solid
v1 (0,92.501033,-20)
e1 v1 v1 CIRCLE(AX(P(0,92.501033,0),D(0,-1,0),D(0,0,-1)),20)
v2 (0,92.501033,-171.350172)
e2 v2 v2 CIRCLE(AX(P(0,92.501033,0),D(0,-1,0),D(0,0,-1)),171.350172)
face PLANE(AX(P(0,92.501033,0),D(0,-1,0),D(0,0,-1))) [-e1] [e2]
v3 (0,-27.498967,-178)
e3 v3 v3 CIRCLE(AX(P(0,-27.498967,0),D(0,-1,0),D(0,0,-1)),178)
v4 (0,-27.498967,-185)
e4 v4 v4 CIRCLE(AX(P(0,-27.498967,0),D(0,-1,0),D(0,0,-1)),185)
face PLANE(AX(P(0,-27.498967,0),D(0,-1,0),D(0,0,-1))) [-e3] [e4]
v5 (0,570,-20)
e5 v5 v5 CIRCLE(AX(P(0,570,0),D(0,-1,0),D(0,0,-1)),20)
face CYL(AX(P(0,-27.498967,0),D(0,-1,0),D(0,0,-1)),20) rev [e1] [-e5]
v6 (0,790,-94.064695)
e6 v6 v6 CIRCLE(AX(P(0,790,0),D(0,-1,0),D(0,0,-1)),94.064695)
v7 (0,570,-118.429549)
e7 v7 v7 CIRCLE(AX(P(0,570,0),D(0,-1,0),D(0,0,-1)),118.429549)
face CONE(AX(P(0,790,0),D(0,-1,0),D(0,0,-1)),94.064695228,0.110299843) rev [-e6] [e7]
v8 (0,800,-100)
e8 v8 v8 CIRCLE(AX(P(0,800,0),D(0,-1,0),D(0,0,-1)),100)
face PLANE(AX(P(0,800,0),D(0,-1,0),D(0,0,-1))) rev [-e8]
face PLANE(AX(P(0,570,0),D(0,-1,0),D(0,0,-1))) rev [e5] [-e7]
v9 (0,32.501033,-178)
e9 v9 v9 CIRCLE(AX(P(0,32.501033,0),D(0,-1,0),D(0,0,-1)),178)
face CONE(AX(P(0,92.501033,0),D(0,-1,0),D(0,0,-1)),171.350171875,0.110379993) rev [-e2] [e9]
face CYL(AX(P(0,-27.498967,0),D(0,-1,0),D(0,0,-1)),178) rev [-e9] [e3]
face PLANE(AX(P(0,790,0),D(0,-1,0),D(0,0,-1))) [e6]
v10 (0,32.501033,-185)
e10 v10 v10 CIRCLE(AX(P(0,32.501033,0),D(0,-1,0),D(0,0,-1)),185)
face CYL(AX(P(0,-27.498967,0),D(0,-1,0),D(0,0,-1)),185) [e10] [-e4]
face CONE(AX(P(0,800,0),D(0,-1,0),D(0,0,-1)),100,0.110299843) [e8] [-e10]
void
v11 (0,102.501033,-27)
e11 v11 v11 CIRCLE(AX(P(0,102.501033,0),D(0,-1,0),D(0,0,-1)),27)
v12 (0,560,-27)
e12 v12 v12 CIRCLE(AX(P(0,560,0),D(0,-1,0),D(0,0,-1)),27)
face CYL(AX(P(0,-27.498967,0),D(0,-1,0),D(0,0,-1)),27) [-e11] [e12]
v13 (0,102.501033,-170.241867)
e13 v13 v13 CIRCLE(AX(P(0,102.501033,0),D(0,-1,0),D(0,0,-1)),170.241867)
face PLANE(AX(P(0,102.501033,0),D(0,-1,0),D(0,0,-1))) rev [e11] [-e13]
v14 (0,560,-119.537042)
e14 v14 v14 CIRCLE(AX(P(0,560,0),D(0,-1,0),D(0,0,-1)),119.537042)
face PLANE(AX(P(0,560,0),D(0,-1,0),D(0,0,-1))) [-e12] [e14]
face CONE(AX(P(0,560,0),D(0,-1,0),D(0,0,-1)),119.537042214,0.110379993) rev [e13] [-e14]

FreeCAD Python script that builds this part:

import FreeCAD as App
import Part
import Sketcher
from FreeCAD import Vector
Q = App.Units.Quantity

doc = App.newDocument("Part")
params = doc.addObject("Spreadsheet::Sheet", "Params")
for row, (alias, value) in enumerate([
    ("sketch1_width", "100 mm"),
    ("sketch1_width2", "7 mm"),
    ("sketch1_height", "10 mm"),
    ("sketch1_height2", "60 mm"),
    ("revolution_angle", "360 deg"),
], start=1):
    params.set(f"A{row}", alias)
    params.set(f"B{row}", "=" + value)
    params.setAlias(f"B{row}", alias)

body = doc.addObject("PartDesign::Body", "Body")

# Sketch on XY plane
sketch1 = body.newObject("Sketcher::SketchObject", "Sketch")
sketch1.AttachmentSupport = (doc.getObject("XY_Plane"), [""])
sketch1.MapMode = "FlatFace"
sketch1.addGeometry([
    Part.LineSegment(Vector(-94, 790, 0), Vector(0, 790, 0)),  # 0
    Part.LineSegment(Vector(0, 790, 0), Vector(0, 800, 0)),  # 1
    Part.LineSegment(Vector(0, 800, 0), Vector(-100, 800, 0)),  # 2
    Part.LineSegment(Vector(-100, 800, 0), Vector(-185, 33, 0)),  # 3
    Part.LineSegment(Vector(-185, 33, 0), Vector(-185, -27, 0)),  # 4
    Part.LineSegment(Vector(-185, -27, 0), Vector(-178, -27, 0)),  # 5
    Part.LineSegment(Vector(-178, -27, 0), Vector(-178, 33, 0)),  # 6
    Part.LineSegment(Vector(-178, 33, 0), Vector(-171, 93, 0)),  # 7
    Part.LineSegment(Vector(-171, 93, 0), Vector(-20, 93, 0)),  # 8
    Part.LineSegment(Vector(-20, 93, 0), Vector(-20, 570, 0)),  # 9
    Part.LineSegment(Vector(-20, 570, 0), Vector(-118, 570, 0)),  # 10
    Part.LineSegment(Vector(-118, 570, 0), Vector(-94, 790, 0)),  # 11
    Part.LineSegment(Vector(-170, 103, 0), Vector(-120, 560, 0)),  # 12
    Part.LineSegment(Vector(-120, 560, 0), Vector(-27, 560, 0)),  # 13
    Part.LineSegment(Vector(-27, 560, 0), Vector(-27, 103, 0)),  # 14
    Part.LineSegment(Vector(-27, 103, 0), Vector(-170, 103, 0)),  # 15
], False)
sketch1.addConstraint([
    Sketcher.Constraint("Coincident", 0, 2, 1, 1),
    Sketcher.Constraint("Coincident", 1, 2, 2, 1),
    Sketcher.Constraint("Coincident", 2, 2, 3, 1),
    Sketcher.Constraint("Coincident", 3, 2, 4, 1),
    Sketcher.Constraint("Coincident", 4, 2, 5, 1),
    Sketcher.Constraint("Coincident", 5, 2, 6, 1),
    Sketcher.Constraint("Coincident", 6, 2, 7, 1),
    Sketcher.Constraint("Coincident", 7, 2, 8, 1),
    Sketcher.Constraint("Coincident", 8, 2, 9, 1),
    Sketcher.Constraint("Coincident", 9, 2, 10, 1),
    Sketcher.Constraint("Coincident", 10, 2, 11, 1),
    Sketcher.Constraint("Coincident", 11, 2, 0, 1),
    Sketcher.Constraint("Coincident", 12, 2, 13, 1),
    Sketcher.Constraint("Coincident", 13, 2, 14, 1),
    Sketcher.Constraint("Coincident", 14, 2, 15, 1),
    Sketcher.Constraint("Coincident", 15, 2, 12, 1),
    Sketcher.Constraint("Horizontal", 0),
    Sketcher.Constraint("Vertical", 1),
    Sketcher.Constraint("Horizontal", 2),
    Sketcher.Constraint("Vertical", 4),
    Sketcher.Constraint("Horizontal", 5),
    Sketcher.Constraint("Vertical", 6),
    Sketcher.Constraint("Horizontal", 8),
    Sketcher.Constraint("Vertical", 9),
    Sketcher.Constraint("Horizontal", 10),
    Sketcher.Constraint("Horizontal", 13),
    Sketcher.Constraint("Vertical", 14),
    Sketcher.Constraint("Horizontal", 15),
    Sketcher.Constraint("PointOnObject", 0, 2, -2),
    Sketcher.Constraint("Parallel", 3, 11),
    Sketcher.Constraint("Parallel", 7, 12),
    Sketcher.Constraint("Horizontal", 3, 2, 6, 2),
    Sketcher.Constraint("DistanceX", 2, 2, 2, 1, Q("100 mm")),
    Sketcher.Constraint("DistanceX", 5, 1, 5, 2, Q("7 mm")),
    Sketcher.Constraint("DistanceY", 1, 1, 1, 2, Q("10 mm")),
    Sketcher.Constraint("DistanceY", 4, 2, 4, 1, Q("60 mm")),
    Sketcher.Constraint("DistanceY", -1, 1, 0, 2, Q("790 mm")),
    Sketcher.Constraint("DistanceX", 3, 2, -1, 1, Q("185 mm")),
    Sketcher.Constraint("DistanceX", 8, 2, -1, 1, Q("20 mm")),
    Sketcher.Constraint("DistanceY", -1, 1, 9, 2, Q("570 mm")),
    Sketcher.Constraint("DistanceY", -1, 1, 12, 2, Q("560 mm")),
    Sketcher.Constraint("DistanceX", 13, 2, -1, 1, Q("27 mm")),
    Sketcher.Constraint("DistanceY", 6, 2, 7, 2, Q("60 mm")),
    Sketcher.Constraint("DistanceY", 8, 2, 14, 2, Q("10 mm")),
    Sketcher.Constraint("DistanceX", 8, 1, 8, 2, Q("151.350172 mm")),
    Sketcher.Constraint("DistanceX", 10, 2, 10, 1, Q("98.429549 mm")),
    Sketcher.Constraint("Distance", 3, Q("772.191469 mm")),
    Sketcher.Constraint("DistanceX", 13, 1, 13, 2, Q("92.537042 mm")),
])
sketch1.setExpression("Constraints[32]", "Params.sketch1_width")
sketch1.setExpression("Constraints[33]", "Params.sketch1_width2")
sketch1.setExpression("Constraints[34]", "Params.sketch1_height")
sketch1.setExpression("Constraints[35]", "Params.sketch1_height2")
revolution = body.newObject("PartDesign::Revolution", "Revolution")
revolution.Profile = sketch1
revolution.ReferenceAxis = (sketch1, ["V_Axis"])
revolution.setExpression("Angle", "Params.revolution_angle")

doc.recompute()
